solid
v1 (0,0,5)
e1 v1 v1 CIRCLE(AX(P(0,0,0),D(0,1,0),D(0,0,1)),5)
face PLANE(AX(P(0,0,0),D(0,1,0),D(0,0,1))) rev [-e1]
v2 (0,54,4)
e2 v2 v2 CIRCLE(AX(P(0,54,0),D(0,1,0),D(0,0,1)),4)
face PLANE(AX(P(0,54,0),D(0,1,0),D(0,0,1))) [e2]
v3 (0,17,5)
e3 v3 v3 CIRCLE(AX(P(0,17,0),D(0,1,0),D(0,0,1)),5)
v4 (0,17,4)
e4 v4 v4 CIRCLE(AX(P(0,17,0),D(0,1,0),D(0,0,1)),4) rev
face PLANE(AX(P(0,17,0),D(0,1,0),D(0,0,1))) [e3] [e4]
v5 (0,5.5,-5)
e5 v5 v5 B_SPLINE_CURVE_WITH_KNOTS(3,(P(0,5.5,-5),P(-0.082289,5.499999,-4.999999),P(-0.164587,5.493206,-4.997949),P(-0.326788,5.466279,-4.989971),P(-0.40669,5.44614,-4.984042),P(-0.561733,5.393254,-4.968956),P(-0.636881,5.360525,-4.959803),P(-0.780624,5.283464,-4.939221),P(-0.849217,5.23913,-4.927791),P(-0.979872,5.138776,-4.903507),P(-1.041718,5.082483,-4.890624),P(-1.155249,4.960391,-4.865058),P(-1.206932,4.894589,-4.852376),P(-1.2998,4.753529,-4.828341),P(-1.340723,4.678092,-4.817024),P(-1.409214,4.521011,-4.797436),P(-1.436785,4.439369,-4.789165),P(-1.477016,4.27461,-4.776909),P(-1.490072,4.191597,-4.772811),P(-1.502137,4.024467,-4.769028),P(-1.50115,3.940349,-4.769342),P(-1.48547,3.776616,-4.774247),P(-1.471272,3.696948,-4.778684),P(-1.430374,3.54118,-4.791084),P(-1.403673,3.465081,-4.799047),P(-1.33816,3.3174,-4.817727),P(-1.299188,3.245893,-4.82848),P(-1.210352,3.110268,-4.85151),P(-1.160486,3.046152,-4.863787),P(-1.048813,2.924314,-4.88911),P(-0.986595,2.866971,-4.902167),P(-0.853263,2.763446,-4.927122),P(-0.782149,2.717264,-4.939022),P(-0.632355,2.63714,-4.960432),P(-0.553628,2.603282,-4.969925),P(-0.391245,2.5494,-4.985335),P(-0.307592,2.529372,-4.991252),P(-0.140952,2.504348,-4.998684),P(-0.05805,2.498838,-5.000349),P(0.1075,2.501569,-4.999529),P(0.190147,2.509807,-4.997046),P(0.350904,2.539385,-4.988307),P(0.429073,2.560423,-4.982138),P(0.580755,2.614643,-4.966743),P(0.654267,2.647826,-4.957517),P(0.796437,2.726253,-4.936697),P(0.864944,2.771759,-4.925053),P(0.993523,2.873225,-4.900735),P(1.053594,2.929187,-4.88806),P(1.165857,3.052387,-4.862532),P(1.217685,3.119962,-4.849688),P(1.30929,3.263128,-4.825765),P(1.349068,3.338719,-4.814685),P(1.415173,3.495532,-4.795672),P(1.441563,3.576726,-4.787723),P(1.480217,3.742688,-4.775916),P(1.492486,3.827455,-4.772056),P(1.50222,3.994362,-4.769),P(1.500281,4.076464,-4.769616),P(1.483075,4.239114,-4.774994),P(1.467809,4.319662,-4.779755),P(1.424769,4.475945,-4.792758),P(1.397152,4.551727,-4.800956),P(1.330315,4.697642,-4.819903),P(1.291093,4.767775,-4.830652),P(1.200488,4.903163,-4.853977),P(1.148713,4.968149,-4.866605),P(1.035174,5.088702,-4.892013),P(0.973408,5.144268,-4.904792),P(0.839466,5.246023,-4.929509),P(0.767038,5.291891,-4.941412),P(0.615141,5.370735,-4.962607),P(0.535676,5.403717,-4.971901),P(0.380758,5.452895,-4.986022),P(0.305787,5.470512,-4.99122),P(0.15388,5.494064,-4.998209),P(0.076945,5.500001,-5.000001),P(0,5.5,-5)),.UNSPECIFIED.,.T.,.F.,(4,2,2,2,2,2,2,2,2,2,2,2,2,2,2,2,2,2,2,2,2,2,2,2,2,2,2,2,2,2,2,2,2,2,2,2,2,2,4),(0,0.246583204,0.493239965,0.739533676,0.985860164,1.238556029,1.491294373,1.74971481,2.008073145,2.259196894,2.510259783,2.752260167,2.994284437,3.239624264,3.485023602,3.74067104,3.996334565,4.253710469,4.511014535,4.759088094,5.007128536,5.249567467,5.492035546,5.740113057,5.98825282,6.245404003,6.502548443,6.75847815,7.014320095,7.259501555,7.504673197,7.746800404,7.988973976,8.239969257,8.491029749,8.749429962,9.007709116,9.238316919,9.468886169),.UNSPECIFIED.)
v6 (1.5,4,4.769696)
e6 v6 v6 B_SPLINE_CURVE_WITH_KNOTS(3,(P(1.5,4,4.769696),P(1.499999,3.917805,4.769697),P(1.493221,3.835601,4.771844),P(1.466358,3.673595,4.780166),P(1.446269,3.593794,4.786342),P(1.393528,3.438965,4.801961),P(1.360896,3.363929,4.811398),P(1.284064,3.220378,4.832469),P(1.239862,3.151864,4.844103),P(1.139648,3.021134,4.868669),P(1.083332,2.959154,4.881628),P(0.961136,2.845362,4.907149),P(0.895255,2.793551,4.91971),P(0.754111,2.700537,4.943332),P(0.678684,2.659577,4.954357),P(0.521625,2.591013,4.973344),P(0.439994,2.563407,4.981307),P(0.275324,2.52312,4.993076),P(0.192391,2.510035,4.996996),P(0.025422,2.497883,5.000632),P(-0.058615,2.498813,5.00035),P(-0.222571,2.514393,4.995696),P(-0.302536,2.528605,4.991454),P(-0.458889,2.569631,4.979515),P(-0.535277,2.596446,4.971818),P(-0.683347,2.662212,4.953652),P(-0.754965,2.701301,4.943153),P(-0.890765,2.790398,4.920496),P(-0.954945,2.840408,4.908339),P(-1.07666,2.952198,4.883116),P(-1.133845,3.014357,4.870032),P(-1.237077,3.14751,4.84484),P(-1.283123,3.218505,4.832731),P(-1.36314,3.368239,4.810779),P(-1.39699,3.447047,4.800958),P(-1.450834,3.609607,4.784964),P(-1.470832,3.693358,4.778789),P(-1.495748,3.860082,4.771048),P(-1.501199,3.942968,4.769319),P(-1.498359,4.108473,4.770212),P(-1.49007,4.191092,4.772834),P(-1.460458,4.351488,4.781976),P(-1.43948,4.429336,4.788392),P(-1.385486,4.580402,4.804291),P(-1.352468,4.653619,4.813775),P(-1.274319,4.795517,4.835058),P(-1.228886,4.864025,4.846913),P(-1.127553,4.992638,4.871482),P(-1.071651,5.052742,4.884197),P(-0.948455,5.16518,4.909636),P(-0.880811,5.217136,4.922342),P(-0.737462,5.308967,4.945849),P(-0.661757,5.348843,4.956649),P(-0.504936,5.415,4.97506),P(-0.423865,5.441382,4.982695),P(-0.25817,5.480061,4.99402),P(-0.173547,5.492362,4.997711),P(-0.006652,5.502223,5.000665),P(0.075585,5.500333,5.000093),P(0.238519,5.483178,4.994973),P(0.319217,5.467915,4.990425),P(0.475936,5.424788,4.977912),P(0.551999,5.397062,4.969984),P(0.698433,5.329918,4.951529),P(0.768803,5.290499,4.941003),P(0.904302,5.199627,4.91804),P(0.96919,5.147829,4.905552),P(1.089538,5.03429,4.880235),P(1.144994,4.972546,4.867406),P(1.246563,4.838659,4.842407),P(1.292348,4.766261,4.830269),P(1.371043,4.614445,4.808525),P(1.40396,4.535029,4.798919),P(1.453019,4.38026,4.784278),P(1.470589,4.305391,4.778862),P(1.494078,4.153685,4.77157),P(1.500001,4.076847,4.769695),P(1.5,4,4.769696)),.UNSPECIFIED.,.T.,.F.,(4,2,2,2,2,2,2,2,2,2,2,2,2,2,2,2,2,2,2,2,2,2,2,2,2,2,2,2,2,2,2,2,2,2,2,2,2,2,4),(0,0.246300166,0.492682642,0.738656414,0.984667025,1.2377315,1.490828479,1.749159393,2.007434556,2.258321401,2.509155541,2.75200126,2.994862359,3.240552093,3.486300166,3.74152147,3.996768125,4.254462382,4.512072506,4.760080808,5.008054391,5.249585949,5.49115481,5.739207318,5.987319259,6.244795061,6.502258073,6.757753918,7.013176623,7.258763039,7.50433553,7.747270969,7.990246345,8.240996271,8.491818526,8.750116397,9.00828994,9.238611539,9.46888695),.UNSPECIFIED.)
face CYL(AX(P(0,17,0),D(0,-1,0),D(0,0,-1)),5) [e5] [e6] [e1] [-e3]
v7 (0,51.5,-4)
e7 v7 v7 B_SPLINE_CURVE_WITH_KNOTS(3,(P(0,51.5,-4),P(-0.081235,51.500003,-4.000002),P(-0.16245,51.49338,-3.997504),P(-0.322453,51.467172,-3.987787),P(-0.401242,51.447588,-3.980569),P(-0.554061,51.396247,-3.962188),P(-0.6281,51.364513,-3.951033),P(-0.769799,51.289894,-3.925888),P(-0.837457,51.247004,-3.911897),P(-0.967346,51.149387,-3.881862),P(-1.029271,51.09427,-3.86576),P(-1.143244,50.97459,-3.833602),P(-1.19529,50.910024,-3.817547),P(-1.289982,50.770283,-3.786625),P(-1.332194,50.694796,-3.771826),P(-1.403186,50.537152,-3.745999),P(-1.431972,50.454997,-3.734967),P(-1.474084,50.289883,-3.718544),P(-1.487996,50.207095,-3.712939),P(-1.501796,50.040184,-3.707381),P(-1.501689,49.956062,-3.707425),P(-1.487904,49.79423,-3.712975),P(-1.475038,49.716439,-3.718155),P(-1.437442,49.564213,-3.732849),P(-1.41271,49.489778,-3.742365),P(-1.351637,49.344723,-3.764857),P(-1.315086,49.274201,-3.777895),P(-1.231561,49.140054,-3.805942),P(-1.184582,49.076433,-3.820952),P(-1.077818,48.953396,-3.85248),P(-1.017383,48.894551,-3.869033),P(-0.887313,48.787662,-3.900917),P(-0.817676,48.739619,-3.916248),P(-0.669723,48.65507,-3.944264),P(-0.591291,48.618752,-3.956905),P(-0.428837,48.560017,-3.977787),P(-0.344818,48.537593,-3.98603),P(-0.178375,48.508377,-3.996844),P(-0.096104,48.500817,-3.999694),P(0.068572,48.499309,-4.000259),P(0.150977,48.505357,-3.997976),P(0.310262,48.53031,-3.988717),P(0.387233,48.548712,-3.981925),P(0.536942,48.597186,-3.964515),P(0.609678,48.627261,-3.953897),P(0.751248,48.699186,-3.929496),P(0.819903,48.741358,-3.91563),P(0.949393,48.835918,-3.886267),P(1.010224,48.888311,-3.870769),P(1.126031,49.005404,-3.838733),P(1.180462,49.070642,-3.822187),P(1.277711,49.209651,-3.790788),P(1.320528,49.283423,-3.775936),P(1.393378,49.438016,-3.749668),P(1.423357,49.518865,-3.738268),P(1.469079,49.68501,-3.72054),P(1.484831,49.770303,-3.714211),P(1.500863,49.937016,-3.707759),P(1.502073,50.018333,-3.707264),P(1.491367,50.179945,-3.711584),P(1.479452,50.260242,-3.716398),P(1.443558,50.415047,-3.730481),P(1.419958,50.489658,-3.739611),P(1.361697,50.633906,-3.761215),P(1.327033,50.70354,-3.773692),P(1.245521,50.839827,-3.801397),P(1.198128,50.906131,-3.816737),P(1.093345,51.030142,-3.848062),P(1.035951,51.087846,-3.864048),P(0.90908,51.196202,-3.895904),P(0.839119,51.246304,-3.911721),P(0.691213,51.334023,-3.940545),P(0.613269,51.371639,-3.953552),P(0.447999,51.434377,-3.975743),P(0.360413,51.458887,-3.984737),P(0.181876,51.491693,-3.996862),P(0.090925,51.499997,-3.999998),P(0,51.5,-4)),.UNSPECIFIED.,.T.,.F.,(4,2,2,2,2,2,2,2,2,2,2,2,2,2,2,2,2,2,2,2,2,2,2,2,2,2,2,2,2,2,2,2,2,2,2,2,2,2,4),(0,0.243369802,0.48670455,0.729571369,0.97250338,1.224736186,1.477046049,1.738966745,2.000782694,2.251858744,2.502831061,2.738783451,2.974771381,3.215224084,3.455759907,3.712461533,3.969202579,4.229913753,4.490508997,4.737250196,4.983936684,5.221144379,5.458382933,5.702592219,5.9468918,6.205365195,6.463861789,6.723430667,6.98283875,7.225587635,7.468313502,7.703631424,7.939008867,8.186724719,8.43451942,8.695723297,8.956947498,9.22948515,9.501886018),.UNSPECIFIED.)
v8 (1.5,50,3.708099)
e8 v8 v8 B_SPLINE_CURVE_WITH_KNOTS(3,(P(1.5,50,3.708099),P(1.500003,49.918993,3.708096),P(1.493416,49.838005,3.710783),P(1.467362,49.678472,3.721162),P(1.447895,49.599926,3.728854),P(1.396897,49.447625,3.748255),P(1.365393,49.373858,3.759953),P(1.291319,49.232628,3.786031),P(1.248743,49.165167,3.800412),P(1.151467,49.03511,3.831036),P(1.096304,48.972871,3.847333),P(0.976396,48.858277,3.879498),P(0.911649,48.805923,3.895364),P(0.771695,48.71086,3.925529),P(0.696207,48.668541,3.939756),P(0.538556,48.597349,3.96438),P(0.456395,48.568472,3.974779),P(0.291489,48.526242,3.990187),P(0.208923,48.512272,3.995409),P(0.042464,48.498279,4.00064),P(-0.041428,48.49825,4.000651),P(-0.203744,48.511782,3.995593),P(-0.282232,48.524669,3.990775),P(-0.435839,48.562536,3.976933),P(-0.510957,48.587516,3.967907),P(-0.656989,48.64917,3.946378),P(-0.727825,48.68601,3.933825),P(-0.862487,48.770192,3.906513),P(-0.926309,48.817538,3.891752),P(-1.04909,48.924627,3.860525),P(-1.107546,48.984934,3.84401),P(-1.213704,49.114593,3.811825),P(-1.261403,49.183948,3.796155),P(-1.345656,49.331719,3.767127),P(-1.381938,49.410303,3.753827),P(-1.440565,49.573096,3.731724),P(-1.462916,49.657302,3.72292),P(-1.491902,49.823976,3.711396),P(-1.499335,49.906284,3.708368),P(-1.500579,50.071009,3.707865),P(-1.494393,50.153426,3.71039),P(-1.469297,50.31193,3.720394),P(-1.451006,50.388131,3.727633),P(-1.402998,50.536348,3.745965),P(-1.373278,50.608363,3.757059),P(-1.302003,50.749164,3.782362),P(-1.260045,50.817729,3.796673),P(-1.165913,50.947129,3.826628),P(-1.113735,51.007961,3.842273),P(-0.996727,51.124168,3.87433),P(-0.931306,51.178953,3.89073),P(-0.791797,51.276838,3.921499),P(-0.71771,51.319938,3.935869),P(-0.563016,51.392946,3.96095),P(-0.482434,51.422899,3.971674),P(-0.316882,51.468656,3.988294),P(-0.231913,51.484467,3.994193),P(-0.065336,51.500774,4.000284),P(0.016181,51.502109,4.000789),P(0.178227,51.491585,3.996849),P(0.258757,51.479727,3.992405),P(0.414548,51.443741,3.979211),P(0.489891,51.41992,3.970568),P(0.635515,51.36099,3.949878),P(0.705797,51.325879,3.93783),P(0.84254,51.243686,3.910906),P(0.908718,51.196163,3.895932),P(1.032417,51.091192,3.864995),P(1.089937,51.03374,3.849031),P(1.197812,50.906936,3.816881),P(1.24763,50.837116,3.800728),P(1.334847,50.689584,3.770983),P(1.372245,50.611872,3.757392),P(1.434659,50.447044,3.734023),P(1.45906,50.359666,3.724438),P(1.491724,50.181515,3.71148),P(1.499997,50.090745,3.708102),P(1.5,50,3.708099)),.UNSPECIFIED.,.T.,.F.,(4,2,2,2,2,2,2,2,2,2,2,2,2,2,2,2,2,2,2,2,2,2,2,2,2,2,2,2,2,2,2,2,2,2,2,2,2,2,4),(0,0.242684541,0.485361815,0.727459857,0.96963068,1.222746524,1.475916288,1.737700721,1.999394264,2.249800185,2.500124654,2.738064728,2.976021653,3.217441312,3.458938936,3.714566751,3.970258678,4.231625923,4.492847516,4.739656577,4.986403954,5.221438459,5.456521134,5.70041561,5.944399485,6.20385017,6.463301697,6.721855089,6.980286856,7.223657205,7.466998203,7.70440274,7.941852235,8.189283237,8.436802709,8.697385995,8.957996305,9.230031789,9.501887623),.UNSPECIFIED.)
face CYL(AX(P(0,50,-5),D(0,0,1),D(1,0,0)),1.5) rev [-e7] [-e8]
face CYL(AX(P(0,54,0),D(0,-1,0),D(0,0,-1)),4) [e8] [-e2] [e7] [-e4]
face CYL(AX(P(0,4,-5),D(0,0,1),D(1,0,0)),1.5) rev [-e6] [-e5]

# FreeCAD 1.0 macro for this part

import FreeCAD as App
import Part
import Sketcher

doc = App.newDocument("Part")
params = doc.addObject("Spreadsheet::Sheet", "Params")
for row, (alias, value) in enumerate([
    ("sketch1_diameter", "10 mm"),
    ("sketch1_diameter2", "8 mm"),
    ("pad1_length", "17 mm"),
    ("sketch2_diameter", "8 mm"),
    ("pad2_length", "54 mm"),
    ("sketch3_diameter", "3 mm"),
], start=1):
    params.set(f"A{row}", alias)
    params.set(f"B{row}", "=" + value)
    params.setAlias(f"B{row}", alias)

body = doc.addObject("PartDesign::Body", "Body")

sketch1 = doc.addObject("Sketcher::SketchObject", "Sketch")
body.addObject(sketch1)
sketch1.AttachmentSupport = (doc.XZ_Plane, [""])
sketch1.MapMode = "FlatFace"
sketch1.addGeometry([
    Part.Circle(App.Vector(0, 0, 0), App.Vector(0, 0, 1), 5),
    Part.Circle(App.Vector(0, 0, 0), App.Vector(0, 0, 1), 4),
], False)
sketch1.addConstraint([
    Sketcher.Constraint("Coincident", 0, 3, -1, 1),
    Sketcher.Constraint("Coincident", 1, 3, -1, 1),
    Sketcher.Constraint("Diameter", 0, 10.0),
    Sketcher.Constraint("Diameter", 1, 8.0),
])
sketch1.setExpression("Constraints[2]", "Params.sketch1_diameter")
sketch1.setExpression("Constraints[3]", "Params.sketch1_diameter2")
pad1 = doc.addObject("PartDesign::Pad", "Pad")
body.addObject(pad1)
pad1.Profile = sketch1
pad1.setExpression("Length", "Params.pad1_length")
pad1.Reversed = True

sketch2 = doc.addObject("Sketcher::SketchObject", "Sketch001")
body.addObject(sketch2)
sketch2.AttachmentSupport = (doc.XZ_Plane, [""])
sketch2.MapMode = "FlatFace"
sketch2.addGeometry(Part.Circle(App.Vector(0, 0, 0), App.Vector(0, 0, 1), 4), False)
sketch2.addConstraint([
    Sketcher.Constraint("Coincident", 0, 3, -1, 1),
    Sketcher.Constraint("Diameter", 0, 8.0),
])
sketch2.setExpression("Constraints[1]", "Params.sketch2_diameter")
pad2 = doc.addObject("PartDesign::Pad", "Pad001")
body.addObject(pad2)
pad2.Profile = sketch2
pad2.setExpression("Length", "Params.pad2_length")
pad2.Reversed = True

sketch3 = doc.addObject("Sketcher::SketchObject", "Sketch002")
body.addObject(sketch3)
sketch3.AttachmentSupport = (doc.XY_Plane, [""])
sketch3.MapMode = "FlatFace"
sketch3.addGeometry([
    Part.Circle(App.Vector(0, 50, 0), App.Vector(0, 0, 1), 1.5),
    Part.Circle(App.Vector(0, 4, 0), App.Vector(0, 0, 1), 1.5),
], False)
sketch3.addConstraint([
    Sketcher.Constraint("Equal", 0, 1),
    Sketcher.Constraint("PointOnObject", 0, 3, -2),
    Sketcher.Constraint("PointOnObject", 1, 3, -2),
    Sketcher.Constraint("Diameter", 0, 3.0),
    Sketcher.Constraint("DistanceY", -1, 1, 0, 3, 50.0),
    Sketcher.Constraint("DistanceY", -1, 1, 1, 3, 4.0),
])
sketch3.setExpression("Constraints[3]", "Params.sketch3_diameter")
pocket1 = doc.addObject("PartDesign::Pocket", "Pocket")
body.addObject(pocket1)
pocket1.Profile = sketch3
pocket1.Type = "ThroughAll"
pocket1.Midplane = True

doc.recompute()
